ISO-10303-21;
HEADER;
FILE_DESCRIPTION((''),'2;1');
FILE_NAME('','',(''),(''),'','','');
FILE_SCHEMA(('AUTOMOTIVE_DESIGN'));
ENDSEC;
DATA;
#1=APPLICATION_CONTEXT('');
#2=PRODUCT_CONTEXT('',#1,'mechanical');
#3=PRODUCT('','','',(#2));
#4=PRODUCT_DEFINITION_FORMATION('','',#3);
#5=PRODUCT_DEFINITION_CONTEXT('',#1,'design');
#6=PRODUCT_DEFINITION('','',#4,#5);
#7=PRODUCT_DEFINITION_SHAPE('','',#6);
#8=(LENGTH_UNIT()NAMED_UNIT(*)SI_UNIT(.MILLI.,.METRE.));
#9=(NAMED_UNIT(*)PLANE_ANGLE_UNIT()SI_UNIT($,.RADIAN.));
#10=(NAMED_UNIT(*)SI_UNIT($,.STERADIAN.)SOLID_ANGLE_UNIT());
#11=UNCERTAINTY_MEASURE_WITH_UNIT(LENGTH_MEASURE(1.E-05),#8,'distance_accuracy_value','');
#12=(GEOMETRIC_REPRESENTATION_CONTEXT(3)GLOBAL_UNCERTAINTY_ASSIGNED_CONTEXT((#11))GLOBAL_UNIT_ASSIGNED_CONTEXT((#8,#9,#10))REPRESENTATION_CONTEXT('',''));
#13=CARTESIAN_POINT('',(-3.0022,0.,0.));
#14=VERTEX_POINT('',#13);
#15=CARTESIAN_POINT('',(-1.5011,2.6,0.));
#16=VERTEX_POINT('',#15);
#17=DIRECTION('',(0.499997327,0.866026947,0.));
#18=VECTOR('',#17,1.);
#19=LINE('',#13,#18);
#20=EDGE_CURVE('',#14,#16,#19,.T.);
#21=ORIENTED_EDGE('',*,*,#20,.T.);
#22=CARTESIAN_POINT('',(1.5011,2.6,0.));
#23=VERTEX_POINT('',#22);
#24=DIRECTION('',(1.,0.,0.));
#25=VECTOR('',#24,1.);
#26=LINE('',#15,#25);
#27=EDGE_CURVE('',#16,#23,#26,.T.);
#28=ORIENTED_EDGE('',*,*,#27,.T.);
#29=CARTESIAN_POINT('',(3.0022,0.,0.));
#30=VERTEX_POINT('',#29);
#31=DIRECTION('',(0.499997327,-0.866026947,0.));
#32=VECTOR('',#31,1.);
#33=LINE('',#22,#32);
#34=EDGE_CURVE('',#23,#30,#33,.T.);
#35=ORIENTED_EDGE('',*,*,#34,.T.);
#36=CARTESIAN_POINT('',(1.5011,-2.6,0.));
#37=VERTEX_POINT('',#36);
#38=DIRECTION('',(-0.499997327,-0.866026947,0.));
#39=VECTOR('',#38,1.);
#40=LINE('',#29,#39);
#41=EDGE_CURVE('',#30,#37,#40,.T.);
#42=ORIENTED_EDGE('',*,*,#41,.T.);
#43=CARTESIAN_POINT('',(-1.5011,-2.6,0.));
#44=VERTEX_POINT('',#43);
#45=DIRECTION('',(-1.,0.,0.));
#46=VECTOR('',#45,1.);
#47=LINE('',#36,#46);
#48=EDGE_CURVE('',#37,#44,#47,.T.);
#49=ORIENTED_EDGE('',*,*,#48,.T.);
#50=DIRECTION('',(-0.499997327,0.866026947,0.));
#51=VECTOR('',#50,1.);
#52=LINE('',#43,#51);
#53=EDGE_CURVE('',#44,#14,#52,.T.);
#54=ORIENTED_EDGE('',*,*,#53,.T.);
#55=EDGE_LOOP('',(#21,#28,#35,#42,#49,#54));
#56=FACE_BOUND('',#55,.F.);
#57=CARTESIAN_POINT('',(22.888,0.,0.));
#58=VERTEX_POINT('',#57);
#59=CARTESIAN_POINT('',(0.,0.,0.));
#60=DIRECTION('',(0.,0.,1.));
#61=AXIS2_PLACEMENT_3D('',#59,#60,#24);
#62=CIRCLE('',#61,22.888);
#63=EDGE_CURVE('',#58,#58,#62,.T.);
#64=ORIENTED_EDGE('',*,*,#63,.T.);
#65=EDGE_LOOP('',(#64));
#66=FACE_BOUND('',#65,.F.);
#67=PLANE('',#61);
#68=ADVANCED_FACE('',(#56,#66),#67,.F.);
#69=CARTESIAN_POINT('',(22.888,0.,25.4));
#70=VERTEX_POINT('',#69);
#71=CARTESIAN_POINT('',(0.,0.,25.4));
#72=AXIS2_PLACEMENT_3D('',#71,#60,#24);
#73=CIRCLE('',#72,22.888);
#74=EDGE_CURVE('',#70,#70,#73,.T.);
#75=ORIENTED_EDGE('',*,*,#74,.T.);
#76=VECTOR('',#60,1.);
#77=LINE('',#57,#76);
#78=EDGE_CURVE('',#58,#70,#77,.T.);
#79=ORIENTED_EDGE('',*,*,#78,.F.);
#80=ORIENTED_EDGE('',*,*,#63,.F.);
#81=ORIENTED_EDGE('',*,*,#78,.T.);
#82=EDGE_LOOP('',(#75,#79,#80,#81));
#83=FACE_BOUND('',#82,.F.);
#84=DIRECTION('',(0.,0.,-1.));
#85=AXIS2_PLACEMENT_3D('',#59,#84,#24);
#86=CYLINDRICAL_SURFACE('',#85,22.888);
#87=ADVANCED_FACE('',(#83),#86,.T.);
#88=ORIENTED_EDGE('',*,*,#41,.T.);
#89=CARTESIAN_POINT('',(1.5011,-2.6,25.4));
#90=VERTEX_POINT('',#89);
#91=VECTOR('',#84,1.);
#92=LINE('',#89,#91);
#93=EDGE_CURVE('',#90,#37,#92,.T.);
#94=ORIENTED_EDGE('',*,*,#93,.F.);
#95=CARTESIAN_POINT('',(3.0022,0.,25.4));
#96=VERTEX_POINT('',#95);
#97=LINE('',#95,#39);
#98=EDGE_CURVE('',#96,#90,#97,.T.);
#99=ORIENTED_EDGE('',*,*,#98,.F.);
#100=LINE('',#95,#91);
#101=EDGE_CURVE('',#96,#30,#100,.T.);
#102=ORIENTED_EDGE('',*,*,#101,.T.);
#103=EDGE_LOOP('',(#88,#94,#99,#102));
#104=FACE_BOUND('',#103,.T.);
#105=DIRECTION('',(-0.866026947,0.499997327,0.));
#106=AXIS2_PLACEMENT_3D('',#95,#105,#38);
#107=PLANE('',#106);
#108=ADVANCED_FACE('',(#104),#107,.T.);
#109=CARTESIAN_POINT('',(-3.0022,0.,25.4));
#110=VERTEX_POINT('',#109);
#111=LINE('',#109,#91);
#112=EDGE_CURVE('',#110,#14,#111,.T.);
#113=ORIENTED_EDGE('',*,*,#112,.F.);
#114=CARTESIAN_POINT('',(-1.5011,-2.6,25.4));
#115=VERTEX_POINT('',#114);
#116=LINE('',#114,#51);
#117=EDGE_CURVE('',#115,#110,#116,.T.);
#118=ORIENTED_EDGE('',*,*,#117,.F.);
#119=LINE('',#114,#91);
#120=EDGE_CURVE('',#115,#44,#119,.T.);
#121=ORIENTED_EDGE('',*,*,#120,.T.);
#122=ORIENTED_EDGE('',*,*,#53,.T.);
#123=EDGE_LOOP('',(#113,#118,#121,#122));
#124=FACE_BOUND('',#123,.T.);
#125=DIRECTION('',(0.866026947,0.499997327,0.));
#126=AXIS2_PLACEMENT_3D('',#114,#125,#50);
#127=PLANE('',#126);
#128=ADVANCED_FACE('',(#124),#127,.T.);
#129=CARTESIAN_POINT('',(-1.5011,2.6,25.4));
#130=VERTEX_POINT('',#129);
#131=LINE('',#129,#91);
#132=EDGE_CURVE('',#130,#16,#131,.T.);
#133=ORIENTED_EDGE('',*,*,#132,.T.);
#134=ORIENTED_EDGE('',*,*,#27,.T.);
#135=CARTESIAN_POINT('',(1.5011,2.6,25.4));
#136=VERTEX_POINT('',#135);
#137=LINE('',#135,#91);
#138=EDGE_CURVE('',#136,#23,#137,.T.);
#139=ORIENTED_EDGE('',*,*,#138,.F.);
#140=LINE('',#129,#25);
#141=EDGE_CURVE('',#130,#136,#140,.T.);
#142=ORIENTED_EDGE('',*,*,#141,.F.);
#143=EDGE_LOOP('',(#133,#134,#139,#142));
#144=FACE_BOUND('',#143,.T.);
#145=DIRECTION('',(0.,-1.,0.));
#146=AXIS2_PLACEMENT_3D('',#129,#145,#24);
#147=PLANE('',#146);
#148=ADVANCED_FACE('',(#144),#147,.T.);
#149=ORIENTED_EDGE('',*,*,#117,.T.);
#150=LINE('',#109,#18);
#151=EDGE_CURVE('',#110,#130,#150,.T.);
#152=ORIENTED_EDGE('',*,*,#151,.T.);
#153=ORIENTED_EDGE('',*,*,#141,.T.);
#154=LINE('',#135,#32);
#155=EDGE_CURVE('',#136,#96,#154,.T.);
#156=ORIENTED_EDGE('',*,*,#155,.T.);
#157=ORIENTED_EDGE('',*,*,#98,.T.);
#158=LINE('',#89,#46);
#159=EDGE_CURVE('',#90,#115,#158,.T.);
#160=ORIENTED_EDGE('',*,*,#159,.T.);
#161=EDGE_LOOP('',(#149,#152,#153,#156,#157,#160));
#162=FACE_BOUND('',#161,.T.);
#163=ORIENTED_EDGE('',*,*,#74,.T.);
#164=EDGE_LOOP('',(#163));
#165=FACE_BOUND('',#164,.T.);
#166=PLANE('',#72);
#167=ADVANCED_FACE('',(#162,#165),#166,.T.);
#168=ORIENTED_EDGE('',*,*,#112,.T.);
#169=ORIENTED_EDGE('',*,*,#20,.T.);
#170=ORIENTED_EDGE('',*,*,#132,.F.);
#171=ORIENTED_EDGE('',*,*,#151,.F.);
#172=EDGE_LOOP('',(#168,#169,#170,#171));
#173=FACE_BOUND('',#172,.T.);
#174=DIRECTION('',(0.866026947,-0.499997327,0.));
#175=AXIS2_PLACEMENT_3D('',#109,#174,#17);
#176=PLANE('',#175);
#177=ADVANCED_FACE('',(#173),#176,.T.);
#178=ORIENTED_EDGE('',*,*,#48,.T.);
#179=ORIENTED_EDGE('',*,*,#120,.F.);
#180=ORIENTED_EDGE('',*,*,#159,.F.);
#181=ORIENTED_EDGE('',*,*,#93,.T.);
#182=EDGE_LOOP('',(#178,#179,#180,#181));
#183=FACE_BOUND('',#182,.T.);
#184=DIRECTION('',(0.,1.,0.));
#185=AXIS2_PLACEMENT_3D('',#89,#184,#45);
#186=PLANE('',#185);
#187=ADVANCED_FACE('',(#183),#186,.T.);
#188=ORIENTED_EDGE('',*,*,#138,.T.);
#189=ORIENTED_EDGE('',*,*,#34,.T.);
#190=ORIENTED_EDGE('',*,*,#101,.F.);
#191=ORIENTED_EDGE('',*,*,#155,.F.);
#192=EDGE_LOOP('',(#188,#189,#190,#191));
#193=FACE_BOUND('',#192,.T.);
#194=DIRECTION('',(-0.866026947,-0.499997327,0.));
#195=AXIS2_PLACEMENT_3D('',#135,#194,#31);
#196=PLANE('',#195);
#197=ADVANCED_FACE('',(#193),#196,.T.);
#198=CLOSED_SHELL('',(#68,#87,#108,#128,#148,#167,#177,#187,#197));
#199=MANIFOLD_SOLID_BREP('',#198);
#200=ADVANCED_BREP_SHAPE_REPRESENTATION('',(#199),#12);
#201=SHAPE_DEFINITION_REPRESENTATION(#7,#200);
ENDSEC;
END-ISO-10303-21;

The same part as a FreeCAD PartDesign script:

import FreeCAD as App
import Part
import Sketcher

V = App.Vector
Q = App.Units.Quantity

doc = App.newDocument("Part")
body = doc.addObject("PartDesign::Body", "Body")

# Sketch on XY plane
sketch1 = doc.addObject("Sketcher::SketchObject", "Sketch")
body.addObject(sketch1)
sketch1.AttachmentSupport = (doc.XY_Plane, [""])
sketch1.MapMode = "FlatFace"
sketch1.addGeometry(Part.Circle(V(0, 0, 0), V(0, 0, 1), 23), False)
sketch1.addConstraint(Sketcher.Constraint("Coincident", 0, 3, -1, 1))
sketch1.addConstraint(Sketcher.Constraint("Diameter", 0, Q("1.8022 in")))
pad1 = doc.addObject("PartDesign::Pad", "Pad")
body.addObject(pad1)
pad1.Profile = sketch1
pad1.Length = Q("1 in")

# Sketch on XY plane
sketch2 = doc.addObject("Sketcher::SketchObject", "Sketch001")
body.addObject(sketch2)
sketch2.AttachmentSupport = (doc.XY_Plane, [""])
sketch2.MapMode = "FlatFace"
sketch2.AttachmentOffset = App.Placement(V(0, 0, 1 * 25.4), App.Rotation())
sketch2.addGeometry(Part.LineSegment(V(3, 0, 0), V(1.5, 2.6, 0)), False)
sketch2.addGeometry(Part.LineSegment(V(1.5, 2.6, 0), V(-1.5, 2.6, 0)), False)
sketch2.addGeometry(Part.LineSegment(V(-1.5, 2.6, 0), V(-3, 0, 0)), False)
sketch2.addGeometry(Part.LineSegment(V(-3, 0, 0), V(-1.5, -2.6, 0)), False)
sketch2.addGeometry(Part.LineSegment(V(-1.5, -2.6, 0), V(1.5, -2.6, 0)), False)
sketch2.addGeometry(Part.LineSegment(V(1.5, -2.6, 0), V(3, 0, 0)), False)
sketch2.addConstraint(Sketcher.Constraint("Coincident", 0, 2, 1, 1))
sketch2.addConstraint(Sketcher.Constraint("Coincident", 1, 2, 2, 1))
sketch2.addConstraint(Sketcher.Constraint("Coincident", 2, 2, 3, 1))
sketch2.addConstraint(Sketcher.Constraint("Coincident", 3, 2, 4, 1))
sketch2.addConstraint(Sketcher.Constraint("Coincident", 4, 2, 5, 1))
sketch2.addConstraint(Sketcher.Constraint("Coincident", 5, 2, 0, 1))
sketch2.addConstraint(Sketcher.Constraint("Horizontal", 1))
sketch2.addConstraint(Sketcher.Constraint("Horizontal", 4))
sketch2.addConstraint(Sketcher.Constraint("Symmetric", 0, 2, 3, 2, -1, 1))
sketch2.addConstraint(Sketcher.Constraint("Symmetric", 2, 2, 5, 2, -1, 1))
sketch2.addConstraint(Sketcher.Constraint("PointOnObject", 2, 2, -1))
sketch2.addConstraint(Sketcher.Constraint("Parallel", 2, 5))
sketch2.addConstraint(Sketcher.Constraint("Vertical", 1, 2, 3, 2))
sketch2.addConstraint(Sketcher.Constraint("Angle", 0, Q("119.9998 deg")))
sketch2.addConstraint(Sketcher.Constraint("DistanceY", 3, 2, 1, 2, Q("5.2 mm")))
sketch2.addConstraint(Sketcher.Constraint("DistanceX", 1, 2, 1, 1, Q("0.1182 in")))
pocket1 = doc.addObject("PartDesign::Pocket", "Pocket")
body.addObject(pocket1)
pocket1.Profile = sketch2
pocket1.Length = Q("1 in")

doc.recompute()
